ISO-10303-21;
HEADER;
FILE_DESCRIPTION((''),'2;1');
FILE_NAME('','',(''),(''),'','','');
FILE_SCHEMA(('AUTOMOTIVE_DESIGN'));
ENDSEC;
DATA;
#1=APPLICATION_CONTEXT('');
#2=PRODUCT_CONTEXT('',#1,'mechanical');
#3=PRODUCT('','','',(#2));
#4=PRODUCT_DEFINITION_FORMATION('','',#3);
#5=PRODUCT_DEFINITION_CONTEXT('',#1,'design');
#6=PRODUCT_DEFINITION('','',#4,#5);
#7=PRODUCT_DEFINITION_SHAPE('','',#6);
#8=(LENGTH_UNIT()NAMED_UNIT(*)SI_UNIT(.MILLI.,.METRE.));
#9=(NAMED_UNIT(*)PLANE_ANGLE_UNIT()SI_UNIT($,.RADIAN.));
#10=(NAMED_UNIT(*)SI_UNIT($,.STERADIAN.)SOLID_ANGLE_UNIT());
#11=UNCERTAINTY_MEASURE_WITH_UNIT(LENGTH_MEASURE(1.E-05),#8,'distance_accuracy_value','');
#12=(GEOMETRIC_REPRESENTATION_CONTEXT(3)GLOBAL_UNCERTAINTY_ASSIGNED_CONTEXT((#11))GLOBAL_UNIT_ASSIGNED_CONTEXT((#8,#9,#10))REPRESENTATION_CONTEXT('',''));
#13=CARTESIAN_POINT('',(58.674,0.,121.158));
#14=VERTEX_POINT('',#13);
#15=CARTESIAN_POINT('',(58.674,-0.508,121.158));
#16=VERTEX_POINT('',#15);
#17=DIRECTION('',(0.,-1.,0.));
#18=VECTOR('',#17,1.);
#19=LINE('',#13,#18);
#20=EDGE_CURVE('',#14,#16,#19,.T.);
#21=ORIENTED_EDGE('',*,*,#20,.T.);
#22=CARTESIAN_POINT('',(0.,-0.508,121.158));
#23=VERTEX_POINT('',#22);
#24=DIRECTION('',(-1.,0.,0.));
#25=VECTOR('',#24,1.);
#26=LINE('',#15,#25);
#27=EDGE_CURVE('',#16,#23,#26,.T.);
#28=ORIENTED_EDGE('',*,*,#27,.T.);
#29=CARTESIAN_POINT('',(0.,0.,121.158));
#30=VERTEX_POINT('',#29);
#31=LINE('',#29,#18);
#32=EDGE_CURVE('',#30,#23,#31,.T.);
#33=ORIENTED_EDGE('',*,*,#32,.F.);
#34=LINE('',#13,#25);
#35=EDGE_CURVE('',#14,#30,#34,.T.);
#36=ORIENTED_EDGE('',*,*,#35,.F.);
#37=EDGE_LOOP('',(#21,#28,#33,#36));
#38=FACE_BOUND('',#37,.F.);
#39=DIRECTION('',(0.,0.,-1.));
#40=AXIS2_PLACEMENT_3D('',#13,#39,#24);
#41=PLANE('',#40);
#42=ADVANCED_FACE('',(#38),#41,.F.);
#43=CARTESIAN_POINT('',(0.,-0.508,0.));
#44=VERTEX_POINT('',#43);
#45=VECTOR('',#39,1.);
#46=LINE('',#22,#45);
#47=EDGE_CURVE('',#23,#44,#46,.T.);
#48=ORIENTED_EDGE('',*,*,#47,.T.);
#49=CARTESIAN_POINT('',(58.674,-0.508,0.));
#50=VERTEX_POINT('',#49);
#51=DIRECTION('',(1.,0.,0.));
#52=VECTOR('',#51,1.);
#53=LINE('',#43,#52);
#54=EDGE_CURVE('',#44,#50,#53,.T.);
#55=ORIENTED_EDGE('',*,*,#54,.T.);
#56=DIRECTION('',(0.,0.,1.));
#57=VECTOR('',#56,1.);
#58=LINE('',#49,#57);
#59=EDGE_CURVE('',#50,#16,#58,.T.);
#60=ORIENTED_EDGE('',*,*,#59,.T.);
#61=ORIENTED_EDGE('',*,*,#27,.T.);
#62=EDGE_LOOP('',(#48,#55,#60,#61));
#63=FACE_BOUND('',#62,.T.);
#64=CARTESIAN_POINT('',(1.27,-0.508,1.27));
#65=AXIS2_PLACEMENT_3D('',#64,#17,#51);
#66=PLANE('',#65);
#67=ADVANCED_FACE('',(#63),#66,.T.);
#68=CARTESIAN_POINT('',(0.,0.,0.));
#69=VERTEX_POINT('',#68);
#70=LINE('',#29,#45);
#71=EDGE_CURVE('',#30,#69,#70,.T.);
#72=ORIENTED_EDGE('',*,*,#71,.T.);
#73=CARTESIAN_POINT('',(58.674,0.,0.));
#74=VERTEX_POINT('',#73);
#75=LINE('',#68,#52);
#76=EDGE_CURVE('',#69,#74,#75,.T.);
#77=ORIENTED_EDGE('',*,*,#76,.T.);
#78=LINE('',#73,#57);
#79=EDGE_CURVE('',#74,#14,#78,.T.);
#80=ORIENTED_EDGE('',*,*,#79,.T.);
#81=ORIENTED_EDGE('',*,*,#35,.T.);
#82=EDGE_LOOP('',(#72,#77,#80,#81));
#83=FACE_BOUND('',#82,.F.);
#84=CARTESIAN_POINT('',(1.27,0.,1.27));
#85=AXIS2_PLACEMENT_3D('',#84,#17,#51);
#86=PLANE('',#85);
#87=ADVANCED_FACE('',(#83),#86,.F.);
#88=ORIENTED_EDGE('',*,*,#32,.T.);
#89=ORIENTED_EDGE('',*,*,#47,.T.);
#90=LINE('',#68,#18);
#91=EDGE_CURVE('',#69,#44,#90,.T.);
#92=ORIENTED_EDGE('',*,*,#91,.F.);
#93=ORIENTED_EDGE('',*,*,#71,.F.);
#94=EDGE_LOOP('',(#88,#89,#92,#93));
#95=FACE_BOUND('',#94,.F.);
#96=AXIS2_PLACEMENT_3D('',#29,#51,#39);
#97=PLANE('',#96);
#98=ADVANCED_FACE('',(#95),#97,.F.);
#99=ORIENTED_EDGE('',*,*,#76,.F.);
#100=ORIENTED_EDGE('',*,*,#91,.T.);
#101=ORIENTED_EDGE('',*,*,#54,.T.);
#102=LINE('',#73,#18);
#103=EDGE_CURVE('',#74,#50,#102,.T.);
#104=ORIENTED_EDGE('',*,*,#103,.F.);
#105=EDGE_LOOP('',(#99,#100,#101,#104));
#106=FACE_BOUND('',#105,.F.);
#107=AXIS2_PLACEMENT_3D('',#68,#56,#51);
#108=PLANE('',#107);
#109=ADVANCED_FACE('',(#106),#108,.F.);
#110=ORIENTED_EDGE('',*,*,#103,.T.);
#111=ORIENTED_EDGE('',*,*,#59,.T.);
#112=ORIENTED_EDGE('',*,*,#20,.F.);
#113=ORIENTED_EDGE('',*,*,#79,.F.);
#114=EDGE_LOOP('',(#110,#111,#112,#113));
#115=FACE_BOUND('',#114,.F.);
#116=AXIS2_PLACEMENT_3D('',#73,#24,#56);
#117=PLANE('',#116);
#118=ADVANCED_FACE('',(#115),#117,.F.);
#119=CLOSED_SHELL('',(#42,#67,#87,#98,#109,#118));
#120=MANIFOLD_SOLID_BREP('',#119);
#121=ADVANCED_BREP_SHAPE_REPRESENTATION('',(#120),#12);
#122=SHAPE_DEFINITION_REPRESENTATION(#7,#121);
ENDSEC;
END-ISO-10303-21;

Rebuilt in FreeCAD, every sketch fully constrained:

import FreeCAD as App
import Part
import Sketcher

V = App.Vector
Q = App.Units.Quantity


def add_polygon(sketch, points):
    """Adds a closed chain of lines whose ends are joined by coincident constraints."""
    first, n = sketch.GeometryCount, len(points)
    for a, b in zip(points, points[1:] + points[:1]):
        sketch.addGeometry(Part.LineSegment(App.Vector(*a, 0), App.Vector(*b, 0)), False)
    for i in range(n):
        sketch.addConstraint(Sketcher.Constraint("Coincident", first + i, 2, first + (i + 1) % n, 1))

doc = App.newDocument("Part")
params = doc.addObject("Spreadsheet::Sheet", "Params")
for row, (alias, value) in enumerate([
    ("sketch1_width", "2.31 in"),
    ("sketch1_height", "4.77 in"),
    ("pad1_length", "0.02 in"),
], start=1):
    params.set(f"A{row}", alias)
    params.set(f"B{row}", "=" + value)
    params.setAlias(f"B{row}", alias)

body = doc.addObject("PartDesign::Body", "Body")

# Sketch on XZ plane
sketch1 = body.newObject("Sketcher::SketchObject", "Sketch")
sketch1.AttachmentSupport = (doc.getObject("XZ_Plane"), [""])
sketch1.MapMode = "FlatFace"
add_polygon(sketch1, [(0, 0), (59, 0), (59, 121), (0, 121)])  # lines 0-3
sketch1.addConstraint([
    Sketcher.Constraint("Horizontal", 0),
    Sketcher.Constraint("Vertical", 1),
    Sketcher.Constraint("Horizontal", 2),
    Sketcher.Constraint("Vertical", 3),
    Sketcher.Constraint("Coincident", 3, 2, -1, 1),
    Sketcher.Constraint("DistanceX", 0, 1, 0, 2, Q("2.31 in")),
    Sketcher.Constraint("DistanceY", 1, 1, 1, 2, Q("4.77 in")),
])
sketch1.setExpression("Constraints[9]", "Params.sketch1_width")
sketch1.setExpression("Constraints[10]", "Params.sketch1_height")
pad1 = body.newObject("PartDesign::Pad", "Pad")
pad1.Profile = sketch1
pad1.setExpression("Length", "Params.pad1_length")

doc.recompute()
